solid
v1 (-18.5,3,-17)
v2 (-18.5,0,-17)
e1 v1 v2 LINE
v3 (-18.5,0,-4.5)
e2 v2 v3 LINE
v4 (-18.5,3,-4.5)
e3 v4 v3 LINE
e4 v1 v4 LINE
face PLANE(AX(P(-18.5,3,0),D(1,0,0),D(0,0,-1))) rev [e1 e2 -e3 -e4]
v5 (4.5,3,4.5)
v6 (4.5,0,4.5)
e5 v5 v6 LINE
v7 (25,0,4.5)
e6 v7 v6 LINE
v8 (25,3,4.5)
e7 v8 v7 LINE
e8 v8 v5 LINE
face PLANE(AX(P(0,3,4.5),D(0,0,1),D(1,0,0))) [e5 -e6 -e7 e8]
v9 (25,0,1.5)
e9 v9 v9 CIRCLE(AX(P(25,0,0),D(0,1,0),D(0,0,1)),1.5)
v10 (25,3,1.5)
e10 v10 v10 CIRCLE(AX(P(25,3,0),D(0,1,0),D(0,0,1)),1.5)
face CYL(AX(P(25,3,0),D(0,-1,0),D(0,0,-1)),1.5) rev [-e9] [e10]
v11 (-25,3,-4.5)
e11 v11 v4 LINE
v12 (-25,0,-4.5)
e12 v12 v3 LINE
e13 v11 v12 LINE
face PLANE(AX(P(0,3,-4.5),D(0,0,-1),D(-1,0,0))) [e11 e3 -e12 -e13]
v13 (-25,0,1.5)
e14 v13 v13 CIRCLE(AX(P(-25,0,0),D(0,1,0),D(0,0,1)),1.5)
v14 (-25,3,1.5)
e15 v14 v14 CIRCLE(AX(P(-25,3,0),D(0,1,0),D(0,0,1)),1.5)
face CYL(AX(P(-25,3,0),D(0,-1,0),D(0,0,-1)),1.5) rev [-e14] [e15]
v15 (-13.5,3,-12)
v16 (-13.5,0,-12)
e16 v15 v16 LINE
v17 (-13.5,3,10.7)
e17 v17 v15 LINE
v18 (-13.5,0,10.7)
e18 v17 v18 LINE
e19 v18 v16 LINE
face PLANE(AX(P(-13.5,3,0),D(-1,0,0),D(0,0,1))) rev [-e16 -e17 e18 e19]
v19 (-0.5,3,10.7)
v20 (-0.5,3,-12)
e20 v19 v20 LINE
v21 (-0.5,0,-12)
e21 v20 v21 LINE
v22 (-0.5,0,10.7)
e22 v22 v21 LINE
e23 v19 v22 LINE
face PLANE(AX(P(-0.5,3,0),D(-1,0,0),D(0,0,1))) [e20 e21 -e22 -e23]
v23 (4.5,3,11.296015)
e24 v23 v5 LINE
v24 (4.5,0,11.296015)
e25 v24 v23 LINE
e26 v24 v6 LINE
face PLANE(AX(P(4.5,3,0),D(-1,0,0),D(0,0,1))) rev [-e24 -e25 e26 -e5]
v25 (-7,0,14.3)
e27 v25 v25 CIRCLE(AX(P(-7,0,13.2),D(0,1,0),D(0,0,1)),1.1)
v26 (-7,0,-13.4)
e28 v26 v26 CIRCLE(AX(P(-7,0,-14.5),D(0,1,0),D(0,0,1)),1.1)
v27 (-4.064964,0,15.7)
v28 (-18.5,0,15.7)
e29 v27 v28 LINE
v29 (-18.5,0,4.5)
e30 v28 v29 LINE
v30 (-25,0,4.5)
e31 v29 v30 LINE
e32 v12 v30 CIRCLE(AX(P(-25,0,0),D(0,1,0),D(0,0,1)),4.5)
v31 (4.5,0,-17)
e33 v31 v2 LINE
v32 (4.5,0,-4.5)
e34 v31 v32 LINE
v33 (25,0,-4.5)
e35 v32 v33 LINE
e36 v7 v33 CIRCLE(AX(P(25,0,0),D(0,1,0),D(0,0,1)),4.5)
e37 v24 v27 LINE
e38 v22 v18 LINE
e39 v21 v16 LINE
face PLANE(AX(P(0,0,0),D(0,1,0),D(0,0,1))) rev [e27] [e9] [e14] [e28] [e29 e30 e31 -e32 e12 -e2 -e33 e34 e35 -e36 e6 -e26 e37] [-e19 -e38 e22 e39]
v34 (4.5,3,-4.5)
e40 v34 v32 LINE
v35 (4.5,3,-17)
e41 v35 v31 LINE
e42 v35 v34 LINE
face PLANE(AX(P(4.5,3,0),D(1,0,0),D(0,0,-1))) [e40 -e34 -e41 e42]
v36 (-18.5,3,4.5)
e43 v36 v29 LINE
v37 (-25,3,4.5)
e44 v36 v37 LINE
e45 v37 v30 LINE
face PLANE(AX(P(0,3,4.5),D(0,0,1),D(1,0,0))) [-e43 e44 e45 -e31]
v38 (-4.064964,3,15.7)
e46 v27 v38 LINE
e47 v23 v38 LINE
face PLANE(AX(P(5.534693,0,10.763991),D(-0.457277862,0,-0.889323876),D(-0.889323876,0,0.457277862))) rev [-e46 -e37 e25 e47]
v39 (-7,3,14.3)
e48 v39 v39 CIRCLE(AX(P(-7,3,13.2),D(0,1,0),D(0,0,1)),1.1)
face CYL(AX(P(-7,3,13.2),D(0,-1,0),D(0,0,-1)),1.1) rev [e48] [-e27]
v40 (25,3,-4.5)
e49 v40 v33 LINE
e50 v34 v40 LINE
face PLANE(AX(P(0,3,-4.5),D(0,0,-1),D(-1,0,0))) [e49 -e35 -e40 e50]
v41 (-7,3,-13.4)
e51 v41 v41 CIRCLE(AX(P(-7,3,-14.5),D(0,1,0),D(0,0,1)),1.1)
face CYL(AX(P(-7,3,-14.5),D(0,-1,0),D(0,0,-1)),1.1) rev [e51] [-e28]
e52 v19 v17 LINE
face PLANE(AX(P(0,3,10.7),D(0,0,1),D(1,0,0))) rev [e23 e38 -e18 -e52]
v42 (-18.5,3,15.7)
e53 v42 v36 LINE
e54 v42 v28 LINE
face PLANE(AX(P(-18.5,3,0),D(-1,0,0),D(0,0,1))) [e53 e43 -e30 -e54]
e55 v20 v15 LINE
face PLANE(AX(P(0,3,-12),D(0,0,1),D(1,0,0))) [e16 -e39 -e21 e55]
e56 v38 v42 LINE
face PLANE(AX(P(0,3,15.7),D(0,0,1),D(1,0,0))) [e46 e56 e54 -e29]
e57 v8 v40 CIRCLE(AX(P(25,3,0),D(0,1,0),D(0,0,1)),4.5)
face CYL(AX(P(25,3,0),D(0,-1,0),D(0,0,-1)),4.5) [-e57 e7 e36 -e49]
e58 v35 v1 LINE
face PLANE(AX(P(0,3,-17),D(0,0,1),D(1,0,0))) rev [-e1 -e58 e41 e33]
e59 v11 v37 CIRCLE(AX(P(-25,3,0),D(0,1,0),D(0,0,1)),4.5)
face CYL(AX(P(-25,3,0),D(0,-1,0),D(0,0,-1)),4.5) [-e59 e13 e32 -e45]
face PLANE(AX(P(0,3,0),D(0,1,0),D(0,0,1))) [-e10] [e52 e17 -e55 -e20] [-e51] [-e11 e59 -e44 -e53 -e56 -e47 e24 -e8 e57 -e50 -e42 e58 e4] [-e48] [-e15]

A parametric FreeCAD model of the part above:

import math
import FreeCAD as App
import Part
import Sketcher
from FreeCAD import Vector
Q = App.Units.Quantity

doc = App.newDocument("Part")
params = doc.addObject("Spreadsheet::Sheet", "Params")
for row, (alias, value) in enumerate([
    ("sketch1_diameter", "3 mm"),
    ("sketch1_diameter2", "2.2 mm"),
    ("sketch1_radius", "4.5 mm"),
    ("sketch1_width", "23 mm"),
    ("sketch1_width2", "13 mm"),
    ("pad1_length", "3 mm"),
], start=1):
    params.set(f"A{row}", alias)
    params.set(f"B{row}", "=" + value)
    params.setAlias(f"B{row}", alias)

body = doc.addObject("PartDesign::Body", "Body")

# Sketch on XZ plane
sketch1 = doc.addObject("Sketcher::SketchObject", "Sketch")
body.addObject(sketch1)
sketch1.AttachmentSupport = (doc.XZ_Plane, [""])
sketch1.MapMode = "FlatFace"
sketch1.addGeometry(Part.ArcOfCircle(Part.Circle(Vector(-25, 0, 0), Vector(0, 0, 1), 4.5), math.radians(90), math.radians(270)), False)
sketch1.addGeometry(Part.LineSegment(Vector(-25, 4.5, 0), Vector(-18.5, 4.5, 0)), False)
sketch1.addGeometry(Part.LineSegment(Vector(-18.5, 4.5, 0), Vector(-18.5, 15.7, 0)), False)
sketch1.addGeometry(Part.LineSegment(Vector(-18.5, 15.7, 0), Vector(4.5, 15.7, 0)), False)
sketch1.addGeometry(Part.LineSegment(Vector(4.5, 15.7, 0), Vector(4.5, 4.5, 0)), False)
sketch1.addGeometry(Part.LineSegment(Vector(4.5, 4.5, 0), Vector(25, 4.5, 0)), False)
sketch1.addGeometry(Part.ArcOfCircle(Part.Circle(Vector(25, 0, 0), Vector(0, 0, 1), 4.5), math.radians(-90), math.radians(90)), False)
sketch1.addGeometry(Part.LineSegment(Vector(25, -4.5, 0), Vector(4.5, -4.5, 0)), False)
sketch1.addGeometry(Part.LineSegment(Vector(4.5, -4.5, 0), Vector(4.5, -17, 0)), False)
sketch1.addGeometry(Part.LineSegment(Vector(4.5, -17, 0), Vector(-18.5, -17, 0)), False)
sketch1.addGeometry(Part.LineSegment(Vector(-18.5, -17, 0), Vector(-18.5, -4.5, 0)), False)
sketch1.addGeometry(Part.LineSegment(Vector(-18.5, -4.5, 0), Vector(-25, -4.5, 0)), False)
sketch1.addGeometry(Part.Circle(Vector(-25, 0, 0), Vector(0, 0, 1), 1.5), False)
sketch1.addGeometry(Part.LineSegment(Vector(-13.5, -12, 0), Vector(-0.5, -12, 0)), False)
sketch1.addGeometry(Part.LineSegment(Vector(-0.5, -12, 0), Vector(-0.5, 10.7, 0)), False)
sketch1.addGeometry(Part.LineSegment(Vector(-0.5, 10.7, 0), Vector(-13.5, 10.7, 0)), False)
sketch1.addGeometry(Part.LineSegment(Vector(-13.5, 10.7, 0), Vector(-13.5, -12, 0)), False)
sketch1.addGeometry(Part.Circle(Vector(-7, -14.5, 0), Vector(0, 0, 1), 1.1), False)
sketch1.addGeometry(Part.Circle(Vector(-7, 13.2, 0), Vector(0, 0, 1), 1.1), False)
sketch1.addGeometry(Part.Circle(Vector(25, 0, 0), Vector(0, 0, 1), 1.5), False)
sketch1.addConstraint(Sketcher.Constraint("Tangent", 0, 1, 1, 1))
sketch1.addConstraint(Sketcher.Constraint("Coincident", 1, 2, 2, 1))
sketch1.addConstraint(Sketcher.Constraint("Coincident", 2, 2, 3, 1))
sketch1.addConstraint(Sketcher.Constraint("Coincident", 3, 2, 4, 1))
sketch1.addConstraint(Sketcher.Constraint("Coincident", 4, 2, 5, 1))
sketch1.addConstraint(Sketcher.Constraint("Tangent", 5, 2, 6, 2))
sketch1.addConstraint(Sketcher.Constraint("Tangent", 6, 1, 7, 1))
sketch1.addConstraint(Sketcher.Constraint("Coincident", 7, 2, 8, 1))
sketch1.addConstraint(Sketcher.Constraint("Coincident", 8, 2, 9, 1))
sketch1.addConstraint(Sketcher.Constraint("Coincident", 9, 2, 10, 1))
sketch1.addConstraint(Sketcher.Constraint("Coincident", 10, 2, 11, 1))
sketch1.addConstraint(Sketcher.Constraint("Tangent", 11, 2, 0, 2))
sketch1.addConstraint(Sketcher.Constraint("Coincident", 13, 2, 14, 1))
sketch1.addConstraint(Sketcher.Constraint("Coincident", 14, 2, 15, 1))
sketch1.addConstraint(Sketcher.Constraint("Coincident", 15, 2, 16, 1))
sketch1.addConstraint(Sketcher.Constraint("Coincident", 16, 2, 13, 1))
sketch1.addConstraint(Sketcher.Constraint("Horizontal", 1))
sketch1.addConstraint(Sketcher.Constraint("Vertical", 2))
sketch1.addConstraint(Sketcher.Constraint("Horizontal", 3))
sketch1.addConstraint(Sketcher.Constraint("Vertical", 4))
sketch1.addConstraint(Sketcher.Constraint("Horizontal", 5))
sketch1.addConstraint(Sketcher.Constraint("Horizontal", 7))
sketch1.addConstraint(Sketcher.Constraint("Vertical", 8))
sketch1.addConstraint(Sketcher.Constraint("Horizontal", 9))
sketch1.addConstraint(Sketcher.Constraint("Vertical", 10))
sketch1.addConstraint(Sketcher.Constraint("Horizontal", 11))
sketch1.addConstraint(Sketcher.Constraint("Horizontal", 13))
sketch1.addConstraint(Sketcher.Constraint("Vertical", 14))
sketch1.addConstraint(Sketcher.Constraint("Horizontal", 15))
sketch1.addConstraint(Sketcher.Constraint("Vertical", 16))
sketch1.addConstraint(Sketcher.Constraint("Coincident", 12, 3, 0, 3))
sketch1.addConstraint(Sketcher.Constraint("Coincident", 19, 3, 6, 3))
sketch1.addConstraint(Sketcher.Constraint("Equal", 0, 6))
sketch1.addConstraint(Sketcher.Constraint("Equal", 17, 18))
sketch1.addConstraint(Sketcher.Constraint("Equal", 12, 19))
sketch1.addConstraint(Sketcher.Constraint("Symmetric", 0, 3, 6, 3, -1, 1))
sketch1.addConstraint(Sketcher.Constraint("Symmetric", 4, 2, 7, 2, -1))
sketch1.addConstraint(Sketcher.Constraint("Vertical", 17, 3, 18, 3))
sketch1.addConstraint(Sketcher.Constraint("Vertical", 2, 2, 9, 2))
sketch1.addConstraint(Sketcher.Constraint("Diameter", 12, Q("3 mm")))
sketch1.addConstraint(Sketcher.Constraint("Diameter", 17, Q("2.2 mm")))
sketch1.addConstraint(Sketcher.Constraint("Radius", 0, Q("4.5 mm")))
sketch1.addConstraint(Sketcher.Constraint("DistanceX", 3, 1, 3, 2, Q("23 mm")))
sketch1.addConstraint(Sketcher.Constraint("DistanceX", 13, 1, 13, 2, Q("13 mm")))
sketch1.addConstraint(Sketcher.Constraint("DistanceX", 1, 1, 1, 2, Q("6.5 mm")))
sketch1.addConstraint(Sketcher.Constraint("DistanceX", 5, 1, 5, 2, Q("20.5 mm")))
sketch1.addConstraint(Sketcher.Constraint("DistanceY", 2, 1, 2, 2, Q("11.2 mm")))
sketch1.addConstraint(Sketcher.Constraint("DistanceY", 8, 2, 8, 1, Q("12.5 mm")))
sketch1.addConstraint(Sketcher.Constraint("DistanceY", 14, 1, 14, 2, Q("22.7 mm")))
sketch1.addConstraint(Sketcher.Constraint("DistanceX", 17, 3, -1, 1, Q("7 mm")))
sketch1.addConstraint(Sketcher.Constraint("DistanceY", 13, 2, -1, 1, Q("12 mm")))
sketch1.addConstraint(Sketcher.Constraint("DistanceY", 17, 3, 0, 1, Q("19 mm")))
sketch1.addConstraint(Sketcher.Constraint("DistanceX", 13, 2, 8, 2, Q("5 mm")))
sketch1.addConstraint(Sketcher.Constraint("DistanceY", -1, 1, 18, 3, Q("13.2 mm")))
sketch1.setExpression("Constraints[39]", "Params.sketch1_diameter")
sketch1.setExpression("Constraints[40]", "Params.sketch1_diameter2")
sketch1.setExpression("Constraints[41]", "Params.sketch1_radius")
sketch1.setExpression("Constraints[42]", "Params.sketch1_width")
sketch1.setExpression("Constraints[43]", "Params.sketch1_width2")
pad1 = doc.addObject("PartDesign::Pad", "Pad")
body.addObject(pad1)
pad1.Profile = sketch1
pad1.setExpression("Length", "Params.pad1_length")
pad1.Reversed = True

# Sketch on XZ plane
sketch2 = doc.addObject("Sketcher::SketchObject", "Sketch001")
body.addObject(sketch2)
sketch2.AttachmentSupport = (doc.XZ_Plane, [""])
sketch2.MapMode = "FlatFace"
sketch2.AttachmentOffset = App.Placement(Vector(0, 0, -3), App.Rotation())
sketch2.addGeometry(Part.LineSegment(Vector(4.5, 15.7, 0), Vector(4.5, 11.3, 0)), False)
sketch2.addGeometry(Part.LineSegment(Vector(4.5, 11.3, 0), Vector(-4.1, 15.7, 0)), False)
sketch2.addGeometry(Part.LineSegment(Vector(-4.1, 15.7, 0), Vector(4.5, 15.7, 0)), False)
sketch2.addConstraint(Sketcher.Constraint("Coincident", 0, 2, 1, 1))
sketch2.addConstraint(Sketcher.Constraint("Coincident", 1, 2, 2, 1))
sketch2.addConstraint(Sketcher.Constraint("Coincident", 2, 2, 0, 1))
sketch2.addConstraint(Sketcher.Constraint("Vertical", 0))
sketch2.addConstraint(Sketcher.Constraint("Horizontal", 2))
sketch2.addConstraint(Sketcher.Constraint("DistanceX", -1, 1, 0, 2, Q("4.5 mm")))
sketch2.addConstraint(Sketcher.Constraint("DistanceY", -1, 1, 1, 2, Q("15.7 mm")))
sketch2.addConstraint(Sketcher.Constraint("Distance", 1, Q("9.630872 mm")))
sketch2.addConstraint(Sketcher.Constraint("DistanceX", 2, 1, 2, 2, Q("8.564964 mm")))
pocket1 = doc.addObject("PartDesign::Pocket", "Pocket")
body.addObject(pocket1)
pocket1.Profile = sketch2
pocket1.Type = "ThroughAll"
pocket1.Reversed = True

doc.recompute()
